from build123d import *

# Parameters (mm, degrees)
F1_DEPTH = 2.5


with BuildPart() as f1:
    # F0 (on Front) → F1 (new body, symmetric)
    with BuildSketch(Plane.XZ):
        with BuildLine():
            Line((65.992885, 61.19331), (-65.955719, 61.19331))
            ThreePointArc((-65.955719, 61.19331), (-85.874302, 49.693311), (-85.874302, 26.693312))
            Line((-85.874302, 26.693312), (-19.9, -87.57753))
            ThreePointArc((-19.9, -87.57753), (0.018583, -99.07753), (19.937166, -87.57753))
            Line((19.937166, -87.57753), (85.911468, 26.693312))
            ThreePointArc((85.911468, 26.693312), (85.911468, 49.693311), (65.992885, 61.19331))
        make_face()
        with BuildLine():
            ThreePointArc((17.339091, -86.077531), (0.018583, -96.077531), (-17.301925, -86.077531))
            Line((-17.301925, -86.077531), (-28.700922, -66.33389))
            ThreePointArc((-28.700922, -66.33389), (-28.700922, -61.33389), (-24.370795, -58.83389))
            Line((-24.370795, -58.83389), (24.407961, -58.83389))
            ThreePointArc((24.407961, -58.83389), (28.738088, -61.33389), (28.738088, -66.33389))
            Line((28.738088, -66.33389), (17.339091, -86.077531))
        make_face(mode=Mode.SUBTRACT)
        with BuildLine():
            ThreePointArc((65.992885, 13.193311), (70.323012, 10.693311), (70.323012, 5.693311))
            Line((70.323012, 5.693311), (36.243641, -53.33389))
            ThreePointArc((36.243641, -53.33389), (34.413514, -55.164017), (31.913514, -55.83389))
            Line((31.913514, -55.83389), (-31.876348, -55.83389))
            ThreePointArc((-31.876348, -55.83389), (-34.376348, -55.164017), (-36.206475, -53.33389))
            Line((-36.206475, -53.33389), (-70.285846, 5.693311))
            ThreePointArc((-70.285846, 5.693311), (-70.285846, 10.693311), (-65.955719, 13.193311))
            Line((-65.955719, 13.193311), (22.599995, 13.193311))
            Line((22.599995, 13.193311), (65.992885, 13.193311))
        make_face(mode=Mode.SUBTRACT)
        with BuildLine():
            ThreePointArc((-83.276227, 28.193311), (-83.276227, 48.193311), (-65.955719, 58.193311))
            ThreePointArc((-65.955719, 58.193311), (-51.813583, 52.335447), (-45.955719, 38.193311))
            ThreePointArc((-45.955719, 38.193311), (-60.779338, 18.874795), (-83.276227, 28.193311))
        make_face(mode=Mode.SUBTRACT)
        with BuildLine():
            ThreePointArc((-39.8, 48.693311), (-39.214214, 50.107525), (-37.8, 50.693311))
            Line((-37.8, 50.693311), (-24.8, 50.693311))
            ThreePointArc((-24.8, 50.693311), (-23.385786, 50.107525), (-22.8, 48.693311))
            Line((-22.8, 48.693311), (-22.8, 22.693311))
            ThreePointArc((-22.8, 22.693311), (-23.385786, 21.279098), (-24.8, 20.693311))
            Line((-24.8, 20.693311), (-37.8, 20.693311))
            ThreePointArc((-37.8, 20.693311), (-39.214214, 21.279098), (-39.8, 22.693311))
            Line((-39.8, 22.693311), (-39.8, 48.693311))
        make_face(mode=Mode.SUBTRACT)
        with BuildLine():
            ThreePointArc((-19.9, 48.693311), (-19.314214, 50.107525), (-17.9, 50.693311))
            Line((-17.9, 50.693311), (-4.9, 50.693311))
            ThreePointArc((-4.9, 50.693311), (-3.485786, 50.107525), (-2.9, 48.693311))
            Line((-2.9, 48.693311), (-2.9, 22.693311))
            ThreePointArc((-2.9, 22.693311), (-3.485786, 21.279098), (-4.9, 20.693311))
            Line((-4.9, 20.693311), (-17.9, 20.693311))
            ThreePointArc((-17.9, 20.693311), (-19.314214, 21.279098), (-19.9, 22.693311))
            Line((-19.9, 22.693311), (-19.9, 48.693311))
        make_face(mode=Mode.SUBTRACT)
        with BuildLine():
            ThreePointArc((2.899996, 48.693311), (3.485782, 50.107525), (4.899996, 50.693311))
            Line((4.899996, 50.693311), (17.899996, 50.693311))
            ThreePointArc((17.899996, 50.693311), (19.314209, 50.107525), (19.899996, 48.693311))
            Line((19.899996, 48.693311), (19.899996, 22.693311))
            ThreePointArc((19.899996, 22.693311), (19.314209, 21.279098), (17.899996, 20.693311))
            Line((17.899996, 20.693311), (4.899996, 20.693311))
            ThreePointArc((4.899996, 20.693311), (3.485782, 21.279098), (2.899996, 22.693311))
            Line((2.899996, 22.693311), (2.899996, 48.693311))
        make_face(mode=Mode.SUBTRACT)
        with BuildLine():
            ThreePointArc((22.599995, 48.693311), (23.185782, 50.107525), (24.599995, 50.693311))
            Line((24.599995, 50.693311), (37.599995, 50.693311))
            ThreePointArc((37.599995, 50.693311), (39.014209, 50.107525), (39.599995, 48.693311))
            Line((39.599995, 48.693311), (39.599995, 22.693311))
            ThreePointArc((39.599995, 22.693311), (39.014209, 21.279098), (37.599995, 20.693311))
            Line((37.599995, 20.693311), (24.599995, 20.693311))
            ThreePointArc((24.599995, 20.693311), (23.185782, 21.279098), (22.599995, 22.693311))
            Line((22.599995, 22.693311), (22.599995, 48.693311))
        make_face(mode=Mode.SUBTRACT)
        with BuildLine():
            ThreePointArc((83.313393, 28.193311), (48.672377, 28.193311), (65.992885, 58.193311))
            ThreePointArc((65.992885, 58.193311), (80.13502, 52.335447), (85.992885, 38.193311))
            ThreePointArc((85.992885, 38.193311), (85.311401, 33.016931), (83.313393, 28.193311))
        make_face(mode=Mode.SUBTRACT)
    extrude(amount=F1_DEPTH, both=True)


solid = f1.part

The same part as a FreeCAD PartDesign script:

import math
import FreeCAD as App
import Part
import Sketcher

V = App.Vector

doc = App.newDocument("Part")
body = doc.addObject("PartDesign::Body", "Body")

sketch1 = body.newObject("Sketcher::SketchObject", "Sketch")
sketch1.AttachmentSupport = (doc.getObject("XZ_Plane"), [""])
sketch1.MapMode = "FlatFace"
sketch1.addGeometry([
    Part.LineSegment(V(65.992885, 61.19331, 0), V(-65.955719, 61.19331, 0)),
    Part.ArcOfCircle(Part.Circle(V(-65.955719, 38.193312, 0), V(0, 0, 1), 22.999999), math.radians(90), math.radians(210.000001)),
    Part.LineSegment(V(-85.874302, 26.693312, 0), V(-19.9, -87.57753, 0)),
    Part.ArcOfCircle(Part.Circle(V(0.018583, -76.077532, 0), V(0, 0, 1), 22.999998), math.radians(-150.000003), math.radians(-29.999997)),
    Part.LineSegment(V(19.937166, -87.57753, 0), V(85.911468, 26.693312, 0)),
    Part.ArcOfCircle(Part.Circle(V(65.992885, 38.193312, 0), V(0, 0, 1), 22.999999), math.radians(-30.000001), math.radians(90)),
    Part.LineSegment(V(28.738088, -66.33389, 0), V(17.339091, -86.077531, 0)),
    Part.ArcOfCircle(Part.Circle(V(0.018583, -76.077531, 0), V(0, 0, 1), 20), math.radians(-150), math.radians(-30)),
    Part.LineSegment(V(-17.301925, -86.077531, 0), V(-28.700922, -66.33389, 0)),
    Part.ArcOfCircle(Part.Circle(V(-24.370795, -63.83389, 0), V(0, 0, 1), 5), math.radians(90), math.radians(210)),
    Part.LineSegment(V(-24.370795, -58.83389, 0), V(24.407961, -58.83389, 0)),
    Part.ArcOfCircle(Part.Circle(V(24.407961, -63.83389, 0), V(0, 0, 1), 5), math.radians(-30), math.radians(90)),
    Part.LineSegment(V(-65.955719, 13.193311, 0), V(65.992885, 13.193311, 0)),
    Part.ArcOfCircle(Part.Circle(V(65.992885, 8.193311, 0), V(0, 0, 1), 5), math.radians(-30), math.radians(90)),
    Part.LineSegment(V(70.323012, 5.693311, 0), V(36.243641, -53.33389, 0)),
    Part.ArcOfCircle(Part.Circle(V(31.913514, -50.83389, 0), V(0, 0, 1), 5), math.radians(-89.999999), math.radians(-30)),
    Part.LineSegment(V(31.913514, -55.83389, 0), V(-31.876348, -55.83389, 0)),
    Part.ArcOfCircle(Part.Circle(V(-31.876348, -50.83389, 0), V(0, 0, 1), 5), math.radians(-150), math.radians(-90.000001)),
    Part.LineSegment(V(-36.206475, -53.33389, 0), V(-70.285846, 5.693311, 0)),
    Part.ArcOfCircle(Part.Circle(V(-65.955719, 8.193311, 0), V(0, 0, 1), 5), math.radians(90), math.radians(210)),
    Part.ArcOfCircle(Part.Circle(V(-65.955719, 38.193312, 0), V(0, 0, 1), 20), math.radians(-149.999998), math.radians(-0.000002)),
    Part.ArcOfCircle(Part.Circle(V(-65.955719, 38.193311, 0), V(0, 0, 1), 20), math.radians(90), math.radians(210)),
    Part.ArcOfCircle(Part.Circle(V(-65.955718, 38.193312, 0), V(0, 0, 1), 19.999999), math.radians(-0.000004), math.radians(90.000004)),
    Part.LineSegment(V(-39.8, 22.693311, 0), V(-39.8, 48.693311, 0)),
    Part.ArcOfCircle(Part.Circle(V(-37.800001, 48.693312, 0), V(0, 0, 1), 1.999999), math.radians(89.999957), math.radians(180.000043)),
    Part.LineSegment(V(-37.8, 50.693311, 0), V(-24.8, 50.693311, 0)),
    Part.ArcOfCircle(Part.Circle(V(-24.799999, 48.693312, 0), V(0, 0, 1), 1.999999), math.radians(-0.000043), math.radians(90.000043)),
    Part.LineSegment(V(-22.8, 48.693311, 0), V(-22.8, 22.693311, 0)),
    Part.ArcOfCircle(Part.Circle(V(-24.8, 22.693311, 0), V(0, 0, 1), 2), math.radians(-89.999994), math.radians(-0.000006)),
    Part.LineSegment(V(-24.8, 20.693311, 0), V(-37.8, 20.693311, 0)),
    Part.ArcOfCircle(Part.Circle(V(-37.8, 22.693311, 0), V(0, 0, 1), 2), math.radians(-179.999994), math.radians(-90.000006)),
    Part.LineSegment(V(-19.9, 22.693311, 0), V(-19.9, 48.693311, 0)),
    Part.ArcOfCircle(Part.Circle(V(-17.900001, 48.693312, 0), V(0, 0, 1), 1.999999), math.radians(89.999957), math.radians(180.000043)),
    Part.LineSegment(V(-17.9, 50.693311, 0), V(-4.9, 50.693311, 0)),
    Part.ArcOfCircle(Part.Circle(V(-4.899999, 48.693312, 0), V(0, 0, 1), 1.999999), math.radians(-0.000043), math.radians(90.000043)),
    Part.LineSegment(V(-2.9, 48.693311, 0), V(-2.9, 22.693311, 0)),
    Part.ArcOfCircle(Part.Circle(V(-4.9, 22.693311, 0), V(0, 0, 1), 2), math.radians(-89.999994), math.radians(-0.000006)),
    Part.LineSegment(V(-4.9, 20.693311, 0), V(-17.9, 20.693311, 0)),
    Part.ArcOfCircle(Part.Circle(V(-17.9, 22.693311, 0), V(0, 0, 1), 2), math.radians(-179.999994), math.radians(-90.000006)),
    Part.LineSegment(V(2.899996, 22.693311, 0), V(2.899996, 48.693311, 0)),
    Part.ArcOfCircle(Part.Circle(V(4.899995, 48.693312, 0), V(0, 0, 1), 1.999999), math.radians(89.999957), math.radians(180.000043)),
    Part.LineSegment(V(4.899996, 50.693311, 0), V(17.899996, 50.693311, 0)),
    Part.ArcOfCircle(Part.Circle(V(17.899996, 48.693311, 0), V(0, 0, 1), 2), math.radians(0.000006), math.radians(89.999994)),
    Part.LineSegment(V(19.899996, 48.693311, 0), V(19.899996, 22.693311, 0)),
    Part.ArcOfCircle(Part.Circle(V(17.899994, 22.693313, 0), V(0, 0, 1), 2.000002), math.radians(-89.999945), math.radians(-0.000055)),
    Part.LineSegment(V(17.899996, 20.693311, 0), V(4.899996, 20.693311, 0)),
    Part.ArcOfCircle(Part.Circle(V(4.899996, 22.693311, 0), V(0, 0, 1), 2), math.radians(-179.999994), math.radians(-90.000006)),
    Part.LineSegment(V(22.599995, 22.693311, 0), V(22.599995, 48.693311, 0)),
    Part.ArcOfCircle(Part.Circle(V(24.599995, 48.693311, 0), V(0, 0, 1), 2), math.radians(90.000006), math.radians(179.999994)),
    Part.LineSegment(V(24.599995, 50.693311, 0), V(37.599995, 50.693311, 0)),
    Part.ArcOfCircle(Part.Circle(V(37.599996, 48.693312, 0), V(0, 0, 1), 1.999999), math.radians(-0.000043), math.radians(90.000043)),
    Part.LineSegment(V(39.599995, 48.693311, 0), V(39.599995, 22.693311, 0)),
    Part.ArcOfCircle(Part.Circle(V(37.599995, 22.693311, 0), V(0, 0, 1), 2), math.radians(-89.999994), math.radians(-0.000006)),
    Part.LineSegment(V(37.599995, 20.693311, 0), V(24.599995, 20.693311, 0)),
    Part.ArcOfCircle(Part.Circle(V(24.599997, 22.693313, 0), V(0, 0, 1), 2.000002), math.radians(-179.999945), math.radians(-90.000055)),
    Part.ArcOfCircle(Part.Circle(V(65.992865, 38.193317, 0), V(0, 0, 1), 20.00002), math.radians(-29.999985), math.radians(-0.000016)),
    Part.ArcOfCircle(Part.Circle(V(65.992885, 38.193311, 0), V(0, 0, 1), 20), math.radians(90), math.radians(330)),
    Part.ArcOfCircle(Part.Circle(V(65.992885, 38.193311, 0), V(0, 0, 1), 20), math.radians(0.000001), math.radians(89.999999)),
], False)
sketch1.addConstraint([
    Sketcher.Constraint("Coincident", 0, 2, 1, 1),
    Sketcher.Constraint("Coincident", 1, 2, 2, 1),
    Sketcher.Constraint("Coincident", 2, 2, 3, 1),
    Sketcher.Constraint("Coincident", 3, 2, 4, 1),
    Sketcher.Constraint("Coincident", 4, 2, 5, 1),
    Sketcher.Constraint("Coincident", 5, 2, 0, 1),
    Sketcher.Constraint("Coincident", 6, 2, 7, 2),
    Sketcher.Constraint("Coincident", 7, 1, 8, 1),
    Sketcher.Constraint("Coincident", 8, 2, 9, 2),
    Sketcher.Constraint("Coincident", 9, 1, 10, 1),
    Sketcher.Constraint("Coincident", 10, 2, 11, 2),
    Sketcher.Constraint("Coincident", 11, 1, 6, 1),
    Sketcher.Constraint("Coincident", 12, 2, 13, 2),
    Sketcher.Constraint("Coincident", 13, 1, 14, 1),
    Sketcher.Constraint("Coincident", 14, 2, 15, 2),
    Sketcher.Constraint("Coincident", 15, 1, 16, 1),
    Sketcher.Constraint("Coincident", 16, 2, 17, 2),
    Sketcher.Constraint("Coincident", 17, 1, 18, 1),
    Sketcher.Constraint("Coincident", 18, 2, 19, 2),
    Sketcher.Constraint("Coincident", 19, 1, 12, 1),
    Sketcher.Constraint("Coincident", 20, 1, 21, 2),
    Sketcher.Constraint("Coincident", 21, 1, 22, 2),
    Sketcher.Constraint("Coincident", 22, 1, 20, 2),
    Sketcher.Constraint("Coincident", 23, 2, 24, 2),
    Sketcher.Constraint("Coincident", 24, 1, 25, 1),
    Sketcher.Constraint("Coincident", 25, 2, 26, 2),
    Sketcher.Constraint("Coincident", 26, 1, 27, 1),
    Sketcher.Constraint("Coincident", 27, 2, 28, 2),
    Sketcher.Constraint("Coincident", 28, 1, 29, 1),
    Sketcher.Constraint("Coincident", 29, 2, 30, 2),
    Sketcher.Constraint("Coincident", 30, 1, 23, 1),
    Sketcher.Constraint("Coincident", 31, 2, 32, 2),
    Sketcher.Constraint("Coincident", 32, 1, 33, 1),
    Sketcher.Constraint("Coincident", 33, 2, 34, 2),
    Sketcher.Constraint("Coincident", 34, 1, 35, 1),
    Sketcher.Constraint("Coincident", 35, 2, 36, 2),
    Sketcher.Constraint("Coincident", 36, 1, 37, 1),
    Sketcher.Constraint("Coincident", 37, 2, 38, 2),
    Sketcher.Constraint("Coincident", 38, 1, 31, 1),
    Sketcher.Constraint("Coincident", 39, 2, 40, 2),
    Sketcher.Constraint("Coincident", 40, 1, 41, 1),
    Sketcher.Constraint("Coincident", 41, 2, 42, 2),
    Sketcher.Constraint("Coincident", 42, 1, 43, 1),
    Sketcher.Constraint("Coincident", 43, 2, 44, 2),
    Sketcher.Constraint("Coincident", 44, 1, 45, 1),
    Sketcher.Constraint("Coincident", 45, 2, 46, 2),
    Sketcher.Constraint("Coincident", 46, 1, 39, 1),
    Sketcher.Constraint("Coincident", 47, 2, 48, 2),
    Sketcher.Constraint("Coincident", 48, 1, 49, 1),
    Sketcher.Constraint("Coincident", 49, 2, 50, 2),
    Sketcher.Constraint("Coincident", 50, 1, 51, 1),
    Sketcher.Constraint("Coincident", 51, 2, 52, 2),
    Sketcher.Constraint("Coincident", 52, 1, 53, 1),
    Sketcher.Constraint("Coincident", 53, 2, 54, 2),
    Sketcher.Constraint("Coincident", 54, 1, 47, 1),
    Sketcher.Constraint("Coincident", 55, 1, 56, 2),
    Sketcher.Constraint("Coincident", 56, 1, 57, 2),
    Sketcher.Constraint("Coincident", 57, 1, 55, 2),
    Sketcher.Constraint("Horizontal", 0),
    Sketcher.Constraint("Horizontal", 10),
    Sketcher.Constraint("Horizontal", 12),
    Sketcher.Constraint("Horizontal", 16),
    Sketcher.Constraint("Vertical", 23),
    Sketcher.Constraint("Horizontal", 25),
    Sketcher.Constraint("Vertical", 27),
    Sketcher.Constraint("Horizontal", 29),
    Sketcher.Constraint("Vertical", 31),
    Sketcher.Constraint("Horizontal", 33),
    Sketcher.Constraint("Vertical", 35),
    Sketcher.Constraint("Horizontal", 37),
    Sketcher.Constraint("Vertical", 39),
    Sketcher.Constraint("Horizontal", 41),
    Sketcher.Constraint("Vertical", 43),
    Sketcher.Constraint("Horizontal", 45),
    Sketcher.Constraint("Vertical", 47),
    Sketcher.Constraint("Horizontal", 49),
    Sketcher.Constraint("Vertical", 51),
    Sketcher.Constraint("Horizontal", 53),
    Sketcher.Constraint("Coincident", 7, 3, 3, 3),
    Sketcher.Constraint("Coincident", 20, 3, 1, 3),
    Sketcher.Constraint("Coincident", 21, 3, 1, 3),
    Sketcher.Constraint("Coincident", 56, 3, 5, 3),
    Sketcher.Constraint("Coincident", 57, 3, 5, 3),
    Sketcher.Constraint("Radius", 1, 22.999999),
    Sketcher.Constraint("Radius", 5, 22.999999),
    Sketcher.Constraint("Radius", 7, 20.0),
    Sketcher.Constraint("Radius", 9, 5.0),
    Sketcher.Constraint("Radius", 11, 5.0),
    Sketcher.Constraint("Radius", 13, 5.0),
    Sketcher.Constraint("Radius", 15, 5.0),
    Sketcher.Constraint("Radius", 17, 5.0),
    Sketcher.Constraint("Radius", 19, 5.0),
    Sketcher.Constraint("Radius", 20, 20.0),
    Sketcher.Constraint("Radius", 22, 19.999999),
    Sketcher.Constraint("Radius", 24, 1.999999),
    Sketcher.Constraint("Radius", 26, 1.999999),
    Sketcher.Constraint("Radius", 28, 2.0),
    Sketcher.Constraint("Radius", 30, 2.0),
    Sketcher.Constraint("Radius", 32, 1.999999),
    Sketcher.Constraint("Radius", 34, 1.999999),
    Sketcher.Constraint("Radius", 36, 2.0),
    Sketcher.Constraint("Radius", 38, 2.0),
    Sketcher.Constraint("Radius", 40, 1.999999),
    Sketcher.Constraint("Radius", 42, 2.0),
    Sketcher.Constraint("Radius", 44, 2.000002),
    Sketcher.Constraint("Radius", 46, 2.0),
    Sketcher.Constraint("Radius", 48, 2.0),
    Sketcher.Constraint("Radius", 50, 1.999999),
    Sketcher.Constraint("Radius", 52, 2.0),
    Sketcher.Constraint("Radius", 54, 2.000002),
    Sketcher.Constraint("Radius", 56, 20.0),
    Sketcher.Constraint("DistanceX", 25, 1, 25, 2, 13.0),
    Sketcher.Constraint("DistanceX", 29, 2, 29, 1, 13.0),
    Sketcher.Constraint("DistanceX", 33, 1, 33, 2, 13.0),
    Sketcher.Constraint("DistanceX", 37, 2, 37, 1, 13.0),
    Sketcher.Constraint("DistanceX", 41, 1, 41, 2, 13.0),
    Sketcher.Constraint("DistanceX", 45, 2, 45, 1, 13.0),
    Sketcher.Constraint("DistanceX", 49, 1, 49, 2, 13.0),
    Sketcher.Constraint("DistanceX", 53, 2, 53, 1, 13.0),
    Sketcher.Constraint("DistanceY", 23, 1, 23, 2, 26.0),
    Sketcher.Constraint("DistanceY", 27, 2, 27, 1, 26.0),
    Sketcher.Constraint("DistanceY", 31, 1, 31, 2, 26.0),
    Sketcher.Constraint("DistanceY", 35, 2, 35, 1, 26.0),
    Sketcher.Constraint("DistanceY", 39, 1, 39, 2, 26.0),
    Sketcher.Constraint("DistanceY", 43, 2, 43, 1, 26.0),
    Sketcher.Constraint("DistanceY", 47, 1, 47, 2, 26.0),
    Sketcher.Constraint("DistanceY", 51, 2, 51, 1, 26.0),
    Sketcher.Constraint("DistanceX", 24, 3, -1, 1, 37.800001),
    Sketcher.Constraint("DistanceX", 26, 3, -1, 1, 24.799999),
    Sketcher.Constraint("DistanceX", 32, 3, -1, 1, 17.900001),
    Sketcher.Constraint("DistanceX", 34, 3, -1, 1, 4.899999),
    Sketcher.Constraint("DistanceX", 2, 2, -1, 1, 19.9),
    Sketcher.Constraint("DistanceX", 24, 1, -1, 1, 37.8),
    Sketcher.Constraint("DistanceX", 28, 1, -1, 1, 24.8),
    Sketcher.Constraint("DistanceX", 32, 1, -1, 1, 17.9),
    Sketcher.Constraint("DistanceX", 36, 1, -1, 1, 4.9),
    Sketcher.Constraint("Radius", 55, 20.00002),
    Sketcher.Constraint("Radius", 3, 22.999998),
    Sketcher.Constraint("DistanceX", 1, 2, -1, 1, 85.874302),
    Sketcher.Constraint("Distance", 14, 68.158741),
    Sketcher.Constraint("Distance", 18, 68.158741),
    Sketcher.Constraint("DistanceX", 0, 2, 0, 1, 131.948604),
    Sketcher.Constraint("DistanceX", 10, 1, 10, 2, 48.778756),
    Sketcher.Constraint("DistanceX", 12, 1, 12, 2, 131.948604),
    Sketcher.Constraint("DistanceX", 16, 2, 16, 1, 63.789862),
    Sketcher.Constraint("DistanceX", 1, 3, -1, 1, 65.955719),
    Sketcher.Constraint("DistanceY", -1, 1, 1, 3, 38.193312),
    Sketcher.Constraint("DistanceY", 7, 3, -1, 1, 76.077531),
    Sketcher.Constraint("DistanceY", 9, 3, -1, 1, 63.83389),
    Sketcher.Constraint("DistanceX", -1, 1, 11, 3, 24.407961),
    Sketcher.Constraint("DistanceY", -1, 1, 13, 3, 8.193311),
    Sketcher.Constraint("DistanceY", 15, 3, -1, 1, 50.83389),
    Sketcher.Constraint("DistanceX", 19, 3, -1, 1, 65.955719),
    Sketcher.Constraint("DistanceY", -1, 1, 28, 3, 22.693311),
    Sketcher.Constraint("DistanceY", -1, 1, 36, 3, 22.693311),
    Sketcher.Constraint("DistanceY", -1, 1, 42, 3, 48.693311),
    Sketcher.Constraint("DistanceY", -1, 1, 46, 3, 22.693311),
    Sketcher.Constraint("DistanceY", -1, 1, 48, 3, 48.693311),
    Sketcher.Constraint("DistanceY", -1, 1, 52, 3, 22.693311),
    Sketcher.Constraint("DistanceX", 0, 2, -1, 1, 65.955719),
    Sketcher.Constraint("DistanceY", 2, 2, -1, 1, 87.57753),
    Sketcher.Constraint("DistanceY", 3, 2, -1, 1, 87.57753),
    Sketcher.Constraint("DistanceX", -1, 1, 4, 2, 85.911468),
    Sketcher.Constraint("DistanceY", -1, 1, 4, 2, 26.693312),
    Sketcher.Constraint("DistanceX", -1, 1, 6, 2, 17.339091),
    Sketcher.Constraint("DistanceY", 7, 1, -1, 1, 86.077531),
    Sketcher.Constraint("DistanceX", 8, 2, -1, 1, 28.700922),
    Sketcher.Constraint("DistanceY", 8, 2, -1, 1, 66.33389),
    Sketcher.Constraint("DistanceX", -1, 1, 10, 2, 24.407961),
    Sketcher.Constraint("DistanceY", 11, 1, -1, 1, 66.33389),
    Sketcher.Constraint("DistanceX", -1, 1, 13, 1, 70.323012),
    Sketcher.Constraint("DistanceY", -1, 1, 13, 1, 5.693311),
    Sketcher.Constraint("DistanceX", -1, 1, 14, 2, 36.243641),
    Sketcher.Constraint("DistanceX", 16, 2, -1, 1, 31.876348),
    Sketcher.Constraint("DistanceY", 17, 1, -1, 1, 53.33389),
    Sketcher.Constraint("DistanceY", -1, 1, 18, 2, 5.693311),
    Sketcher.Constraint("DistanceX", 19, 1, -1, 1, 65.955719),
    Sketcher.Constraint("DistanceY", -1, 1, 20, 1, 28.193311),
    Sketcher.Constraint("DistanceX", 21, 1, -1, 1, 65.955719),
    Sketcher.Constraint("DistanceY", -1, 1, 22, 1, 38.193311),
    Sketcher.Constraint("DistanceY", -1, 1, 23, 2, 48.693311),
    Sketcher.Constraint("DistanceY", -1, 1, 24, 1, 50.693311),
    Sketcher.Constraint("DistanceY", -1, 1, 26, 1, 48.693311),
    Sketcher.Constraint("DistanceY", -1, 1, 31, 2, 48.693311),
    Sketcher.Constraint("DistanceY", -1, 1, 32, 1, 50.693311),
    Sketcher.Constraint("DistanceY", -1, 1, 34, 1, 48.693311),
    Sketcher.Constraint("DistanceY", -1, 1, 39, 2, 48.693311),
    Sketcher.Constraint("DistanceY", -1, 1, 42, 1, 48.693311),
    Sketcher.Constraint("DistanceY", -1, 1, 47, 2, 48.693311),
    Sketcher.Constraint("DistanceY", -1, 1, 50, 1, 48.693311),
    Sketcher.Constraint("DistanceY", -1, 1, 55, 1, 28.193311),
    Sketcher.Constraint("DistanceY", -1, 1, 57, 1, 38.193311),
    Sketcher.Constraint("DistanceX", -1, 1, 40, 3, 4.899995),
    Sketcher.Constraint("DistanceX", -1, 1, 42, 3, 17.899996),
    Sketcher.Constraint("DistanceX", -1, 1, 48, 3, 24.599995),
    Sketcher.Constraint("DistanceX", -1, 1, 50, 3, 37.599996),
    Sketcher.Constraint("DistanceX", -1, 1, 40, 1, 4.899996),
    Sketcher.Constraint("DistanceX", -1, 1, 44, 1, 17.899996),
    Sketcher.Constraint("DistanceX", -1, 1, 48, 1, 24.599995),
    Sketcher.Constraint("DistanceX", -1, 1, 52, 1, 37.599995),
    Sketcher.Constraint("DistanceX", -1, 1, 56, 1, 65.992885),
])
pad1 = body.newObject("PartDesign::Pad", "Pad")
pad1.Profile = sketch1
pad1.Length = 5
pad1.Midplane = True

doc.recompute()
